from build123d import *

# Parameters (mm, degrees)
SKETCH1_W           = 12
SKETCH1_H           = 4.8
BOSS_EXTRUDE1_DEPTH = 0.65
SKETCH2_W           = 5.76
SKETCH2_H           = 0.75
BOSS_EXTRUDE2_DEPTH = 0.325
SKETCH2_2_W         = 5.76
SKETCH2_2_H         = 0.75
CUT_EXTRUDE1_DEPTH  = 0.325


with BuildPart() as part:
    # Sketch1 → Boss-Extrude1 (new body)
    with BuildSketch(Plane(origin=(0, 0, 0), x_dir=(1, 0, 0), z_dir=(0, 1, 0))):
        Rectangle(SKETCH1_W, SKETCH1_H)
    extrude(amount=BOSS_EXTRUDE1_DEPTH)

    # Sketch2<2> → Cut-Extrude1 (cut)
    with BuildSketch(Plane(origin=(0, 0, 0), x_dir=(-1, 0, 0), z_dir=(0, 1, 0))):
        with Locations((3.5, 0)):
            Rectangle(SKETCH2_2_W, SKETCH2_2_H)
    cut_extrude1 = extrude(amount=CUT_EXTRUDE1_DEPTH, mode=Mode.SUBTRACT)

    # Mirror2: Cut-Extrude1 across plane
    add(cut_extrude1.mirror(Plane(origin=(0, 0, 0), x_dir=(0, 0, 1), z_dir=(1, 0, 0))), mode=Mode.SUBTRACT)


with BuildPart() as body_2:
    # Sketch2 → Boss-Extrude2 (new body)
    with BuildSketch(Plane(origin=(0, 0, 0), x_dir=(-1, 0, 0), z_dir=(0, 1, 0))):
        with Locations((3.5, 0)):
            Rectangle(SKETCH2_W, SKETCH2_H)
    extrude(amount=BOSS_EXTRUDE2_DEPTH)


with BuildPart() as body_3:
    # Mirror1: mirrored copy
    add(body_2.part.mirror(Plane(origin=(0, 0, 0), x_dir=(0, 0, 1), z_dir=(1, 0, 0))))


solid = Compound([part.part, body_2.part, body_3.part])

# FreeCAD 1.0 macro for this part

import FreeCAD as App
import Part
import Sketcher

V = App.Vector
Q = App.Units.Quantity

doc = App.newDocument("Part")
body = doc.addObject("PartDesign::Body", "Body")

sketch1 = body.newObject("Sketcher::SketchObject", "Sketch")
sketch1.AttachmentSupport = (doc.getObject("XZ_Plane"), [""])
sketch1.MapMode = "FlatFace"
sketch1.addGeometry([
    Part.LineSegment(V(-6, -2.4, 0), V(-6, 2.4, 0)),
    Part.LineSegment(V(-6, 2.4, 0), V(6, 2.4, 0)),
    Part.LineSegment(V(6, 2.4, 0), V(6, -2.4, 0)),
    Part.LineSegment(V(6, -2.4, 0), V(-6, -2.4, 0)),
], False)
sketch1.addConstraint([
    Sketcher.Constraint("Coincident", 0, 2, 1, 1),
    Sketcher.Constraint("Coincident", 1, 2, 2, 1),
    Sketcher.Constraint("Coincident", 2, 2, 3, 1),
    Sketcher.Constraint("Coincident", 3, 2, 0, 1),
    Sketcher.Constraint("Vertical", 0),
    Sketcher.Constraint("Horizontal", 1),
    Sketcher.Constraint("Vertical", 2),
    Sketcher.Constraint("Horizontal", 3),
    Sketcher.Constraint("Symmetric", 0, 2, 2, 2, -1, 1),
    Sketcher.Constraint("DistanceX", 1, 1, 1, 2, Q("12 mm")),
    Sketcher.Constraint("DistanceY", 0, 1, 0, 2, Q("4.8 mm")),
])
pad1 = body.newObject("PartDesign::Pad", "Pad")
pad1.Profile = sketch1
pad1.Length = 0.65
pad1.Reversed = True

sketch2 = body.newObject("Sketcher::SketchObject", "Sketch001")
sketch2.AttachmentSupport = (doc.getObject("XZ_Plane"), [""])
sketch2.MapMode = "FlatFace"
sketch2.addGeometry([
    Part.LineSegment(V(-0.62, 0.375, 0), V(-0.62, -0.375, 0)),
    Part.LineSegment(V(-0.62, -0.375, 0), V(-6.38, -0.375, 0)),
    Part.LineSegment(V(-6.38, -0.375, 0), V(-6.38, 0.375, 0)),
    Part.LineSegment(V(-6.38, 0.375, 0), V(-0.62, 0.375, 0)),
], False)
sketch2.addConstraint([
    Sketcher.Constraint("Coincident", 0, 2, 1, 1),
    Sketcher.Constraint("Coincident", 1, 2, 2, 1),
    Sketcher.Constraint("Coincident", 2, 2, 3, 1),
    Sketcher.Constraint("Coincident", 3, 2, 0, 1),
    Sketcher.Constraint("Vertical", 0),
    Sketcher.Constraint("Horizontal", 1),
    Sketcher.Constraint("Vertical", 2),
    Sketcher.Constraint("Horizontal", 3),
    Sketcher.Constraint("DistanceX", 1, 2, 1, 1, Q("5.76 mm")),
    Sketcher.Constraint("DistanceY", 0, 2, 0, 1, Q("0.75 mm")),
    Sketcher.Constraint("DistanceX", 0, 2, -1, 1, Q("0.62 mm")),
    Sketcher.Constraint("DistanceY", 0, 2, -1, 1, Q("0.375 mm")),
])
pocket1 = body.newObject("PartDesign::Pocket", "Pocket")
pocket1.Profile = sketch2
pocket1.Length = 0.325
doc.recompute()

mirrored = body.newObject("PartDesign::Mirrored", "Mirrored")
mirrored.Originals = [pocket1]
mirrored.MirrorPlane = (doc.getObject("YZ_Plane"), [""])
body.Tip = mirrored
body2 = doc.addObject("PartDesign::Body", "Body001")

sketch3 = body2.newObject("Sketcher::SketchObject", "Sketch002")
sketch3.AttachmentSupport = (doc.getObject("XZ_Plane001"), [""])
sketch3.MapMode = "FlatFace"
sketch3.addGeometry([
    Part.LineSegment(V(-0.62, 0.375, 0), V(-0.62, -0.375, 0)),
    Part.LineSegment(V(-0.62, -0.375, 0), V(-6.38, -0.375, 0)),
    Part.LineSegment(V(-6.38, -0.375, 0), V(-6.38, 0.375, 0)),
    Part.LineSegment(V(-6.38, 0.375, 0), V(-0.62, 0.375, 0)),
], False)
sketch3.addConstraint([
    Sketcher.Constraint("Coincident", 0, 2, 1, 1),
    Sketcher.Constraint("Coincident", 1, 2, 2, 1),
    Sketcher.Constraint("Coincident", 2, 2, 3, 1),
    Sketcher.Constraint("Coincident", 3, 2, 0, 1),
    Sketcher.Constraint("Vertical", 0),
    Sketcher.Constraint("Horizontal", 1),
    Sketcher.Constraint("Vertical", 2),
    Sketcher.Constraint("Horizontal", 3),
    Sketcher.Constraint("DistanceX", 1, 2, 1, 1, Q("5.76 mm")),
    Sketcher.Constraint("DistanceY", 0, 2, 0, 1, Q("0.75 mm")),
    Sketcher.Constraint("DistanceX", 0, 2, -1, 1, Q("0.62 mm")),
    Sketcher.Constraint("DistanceY", 0, 2, -1, 1, Q("0.375 mm")),
])
pad2 = body2.newObject("PartDesign::Pad", "Pad001")
pad2.Profile = sketch3
pad2.Length = 0.325
pad2.Reversed = True
body3 = doc.addObject("PartDesign::Body", "Body002")
doc.recompute()

mirroring = doc.addObject("Part::Mirroring", "Mirroring")
mirroring.Source = body2
mirroring.Base = V(0, 0, 0)
mirroring.Normal = V(1, 0, 0)
body3.BaseFeature = mirroring
doc.recompute()
mirroring.Visibility = False

doc.recompute()
